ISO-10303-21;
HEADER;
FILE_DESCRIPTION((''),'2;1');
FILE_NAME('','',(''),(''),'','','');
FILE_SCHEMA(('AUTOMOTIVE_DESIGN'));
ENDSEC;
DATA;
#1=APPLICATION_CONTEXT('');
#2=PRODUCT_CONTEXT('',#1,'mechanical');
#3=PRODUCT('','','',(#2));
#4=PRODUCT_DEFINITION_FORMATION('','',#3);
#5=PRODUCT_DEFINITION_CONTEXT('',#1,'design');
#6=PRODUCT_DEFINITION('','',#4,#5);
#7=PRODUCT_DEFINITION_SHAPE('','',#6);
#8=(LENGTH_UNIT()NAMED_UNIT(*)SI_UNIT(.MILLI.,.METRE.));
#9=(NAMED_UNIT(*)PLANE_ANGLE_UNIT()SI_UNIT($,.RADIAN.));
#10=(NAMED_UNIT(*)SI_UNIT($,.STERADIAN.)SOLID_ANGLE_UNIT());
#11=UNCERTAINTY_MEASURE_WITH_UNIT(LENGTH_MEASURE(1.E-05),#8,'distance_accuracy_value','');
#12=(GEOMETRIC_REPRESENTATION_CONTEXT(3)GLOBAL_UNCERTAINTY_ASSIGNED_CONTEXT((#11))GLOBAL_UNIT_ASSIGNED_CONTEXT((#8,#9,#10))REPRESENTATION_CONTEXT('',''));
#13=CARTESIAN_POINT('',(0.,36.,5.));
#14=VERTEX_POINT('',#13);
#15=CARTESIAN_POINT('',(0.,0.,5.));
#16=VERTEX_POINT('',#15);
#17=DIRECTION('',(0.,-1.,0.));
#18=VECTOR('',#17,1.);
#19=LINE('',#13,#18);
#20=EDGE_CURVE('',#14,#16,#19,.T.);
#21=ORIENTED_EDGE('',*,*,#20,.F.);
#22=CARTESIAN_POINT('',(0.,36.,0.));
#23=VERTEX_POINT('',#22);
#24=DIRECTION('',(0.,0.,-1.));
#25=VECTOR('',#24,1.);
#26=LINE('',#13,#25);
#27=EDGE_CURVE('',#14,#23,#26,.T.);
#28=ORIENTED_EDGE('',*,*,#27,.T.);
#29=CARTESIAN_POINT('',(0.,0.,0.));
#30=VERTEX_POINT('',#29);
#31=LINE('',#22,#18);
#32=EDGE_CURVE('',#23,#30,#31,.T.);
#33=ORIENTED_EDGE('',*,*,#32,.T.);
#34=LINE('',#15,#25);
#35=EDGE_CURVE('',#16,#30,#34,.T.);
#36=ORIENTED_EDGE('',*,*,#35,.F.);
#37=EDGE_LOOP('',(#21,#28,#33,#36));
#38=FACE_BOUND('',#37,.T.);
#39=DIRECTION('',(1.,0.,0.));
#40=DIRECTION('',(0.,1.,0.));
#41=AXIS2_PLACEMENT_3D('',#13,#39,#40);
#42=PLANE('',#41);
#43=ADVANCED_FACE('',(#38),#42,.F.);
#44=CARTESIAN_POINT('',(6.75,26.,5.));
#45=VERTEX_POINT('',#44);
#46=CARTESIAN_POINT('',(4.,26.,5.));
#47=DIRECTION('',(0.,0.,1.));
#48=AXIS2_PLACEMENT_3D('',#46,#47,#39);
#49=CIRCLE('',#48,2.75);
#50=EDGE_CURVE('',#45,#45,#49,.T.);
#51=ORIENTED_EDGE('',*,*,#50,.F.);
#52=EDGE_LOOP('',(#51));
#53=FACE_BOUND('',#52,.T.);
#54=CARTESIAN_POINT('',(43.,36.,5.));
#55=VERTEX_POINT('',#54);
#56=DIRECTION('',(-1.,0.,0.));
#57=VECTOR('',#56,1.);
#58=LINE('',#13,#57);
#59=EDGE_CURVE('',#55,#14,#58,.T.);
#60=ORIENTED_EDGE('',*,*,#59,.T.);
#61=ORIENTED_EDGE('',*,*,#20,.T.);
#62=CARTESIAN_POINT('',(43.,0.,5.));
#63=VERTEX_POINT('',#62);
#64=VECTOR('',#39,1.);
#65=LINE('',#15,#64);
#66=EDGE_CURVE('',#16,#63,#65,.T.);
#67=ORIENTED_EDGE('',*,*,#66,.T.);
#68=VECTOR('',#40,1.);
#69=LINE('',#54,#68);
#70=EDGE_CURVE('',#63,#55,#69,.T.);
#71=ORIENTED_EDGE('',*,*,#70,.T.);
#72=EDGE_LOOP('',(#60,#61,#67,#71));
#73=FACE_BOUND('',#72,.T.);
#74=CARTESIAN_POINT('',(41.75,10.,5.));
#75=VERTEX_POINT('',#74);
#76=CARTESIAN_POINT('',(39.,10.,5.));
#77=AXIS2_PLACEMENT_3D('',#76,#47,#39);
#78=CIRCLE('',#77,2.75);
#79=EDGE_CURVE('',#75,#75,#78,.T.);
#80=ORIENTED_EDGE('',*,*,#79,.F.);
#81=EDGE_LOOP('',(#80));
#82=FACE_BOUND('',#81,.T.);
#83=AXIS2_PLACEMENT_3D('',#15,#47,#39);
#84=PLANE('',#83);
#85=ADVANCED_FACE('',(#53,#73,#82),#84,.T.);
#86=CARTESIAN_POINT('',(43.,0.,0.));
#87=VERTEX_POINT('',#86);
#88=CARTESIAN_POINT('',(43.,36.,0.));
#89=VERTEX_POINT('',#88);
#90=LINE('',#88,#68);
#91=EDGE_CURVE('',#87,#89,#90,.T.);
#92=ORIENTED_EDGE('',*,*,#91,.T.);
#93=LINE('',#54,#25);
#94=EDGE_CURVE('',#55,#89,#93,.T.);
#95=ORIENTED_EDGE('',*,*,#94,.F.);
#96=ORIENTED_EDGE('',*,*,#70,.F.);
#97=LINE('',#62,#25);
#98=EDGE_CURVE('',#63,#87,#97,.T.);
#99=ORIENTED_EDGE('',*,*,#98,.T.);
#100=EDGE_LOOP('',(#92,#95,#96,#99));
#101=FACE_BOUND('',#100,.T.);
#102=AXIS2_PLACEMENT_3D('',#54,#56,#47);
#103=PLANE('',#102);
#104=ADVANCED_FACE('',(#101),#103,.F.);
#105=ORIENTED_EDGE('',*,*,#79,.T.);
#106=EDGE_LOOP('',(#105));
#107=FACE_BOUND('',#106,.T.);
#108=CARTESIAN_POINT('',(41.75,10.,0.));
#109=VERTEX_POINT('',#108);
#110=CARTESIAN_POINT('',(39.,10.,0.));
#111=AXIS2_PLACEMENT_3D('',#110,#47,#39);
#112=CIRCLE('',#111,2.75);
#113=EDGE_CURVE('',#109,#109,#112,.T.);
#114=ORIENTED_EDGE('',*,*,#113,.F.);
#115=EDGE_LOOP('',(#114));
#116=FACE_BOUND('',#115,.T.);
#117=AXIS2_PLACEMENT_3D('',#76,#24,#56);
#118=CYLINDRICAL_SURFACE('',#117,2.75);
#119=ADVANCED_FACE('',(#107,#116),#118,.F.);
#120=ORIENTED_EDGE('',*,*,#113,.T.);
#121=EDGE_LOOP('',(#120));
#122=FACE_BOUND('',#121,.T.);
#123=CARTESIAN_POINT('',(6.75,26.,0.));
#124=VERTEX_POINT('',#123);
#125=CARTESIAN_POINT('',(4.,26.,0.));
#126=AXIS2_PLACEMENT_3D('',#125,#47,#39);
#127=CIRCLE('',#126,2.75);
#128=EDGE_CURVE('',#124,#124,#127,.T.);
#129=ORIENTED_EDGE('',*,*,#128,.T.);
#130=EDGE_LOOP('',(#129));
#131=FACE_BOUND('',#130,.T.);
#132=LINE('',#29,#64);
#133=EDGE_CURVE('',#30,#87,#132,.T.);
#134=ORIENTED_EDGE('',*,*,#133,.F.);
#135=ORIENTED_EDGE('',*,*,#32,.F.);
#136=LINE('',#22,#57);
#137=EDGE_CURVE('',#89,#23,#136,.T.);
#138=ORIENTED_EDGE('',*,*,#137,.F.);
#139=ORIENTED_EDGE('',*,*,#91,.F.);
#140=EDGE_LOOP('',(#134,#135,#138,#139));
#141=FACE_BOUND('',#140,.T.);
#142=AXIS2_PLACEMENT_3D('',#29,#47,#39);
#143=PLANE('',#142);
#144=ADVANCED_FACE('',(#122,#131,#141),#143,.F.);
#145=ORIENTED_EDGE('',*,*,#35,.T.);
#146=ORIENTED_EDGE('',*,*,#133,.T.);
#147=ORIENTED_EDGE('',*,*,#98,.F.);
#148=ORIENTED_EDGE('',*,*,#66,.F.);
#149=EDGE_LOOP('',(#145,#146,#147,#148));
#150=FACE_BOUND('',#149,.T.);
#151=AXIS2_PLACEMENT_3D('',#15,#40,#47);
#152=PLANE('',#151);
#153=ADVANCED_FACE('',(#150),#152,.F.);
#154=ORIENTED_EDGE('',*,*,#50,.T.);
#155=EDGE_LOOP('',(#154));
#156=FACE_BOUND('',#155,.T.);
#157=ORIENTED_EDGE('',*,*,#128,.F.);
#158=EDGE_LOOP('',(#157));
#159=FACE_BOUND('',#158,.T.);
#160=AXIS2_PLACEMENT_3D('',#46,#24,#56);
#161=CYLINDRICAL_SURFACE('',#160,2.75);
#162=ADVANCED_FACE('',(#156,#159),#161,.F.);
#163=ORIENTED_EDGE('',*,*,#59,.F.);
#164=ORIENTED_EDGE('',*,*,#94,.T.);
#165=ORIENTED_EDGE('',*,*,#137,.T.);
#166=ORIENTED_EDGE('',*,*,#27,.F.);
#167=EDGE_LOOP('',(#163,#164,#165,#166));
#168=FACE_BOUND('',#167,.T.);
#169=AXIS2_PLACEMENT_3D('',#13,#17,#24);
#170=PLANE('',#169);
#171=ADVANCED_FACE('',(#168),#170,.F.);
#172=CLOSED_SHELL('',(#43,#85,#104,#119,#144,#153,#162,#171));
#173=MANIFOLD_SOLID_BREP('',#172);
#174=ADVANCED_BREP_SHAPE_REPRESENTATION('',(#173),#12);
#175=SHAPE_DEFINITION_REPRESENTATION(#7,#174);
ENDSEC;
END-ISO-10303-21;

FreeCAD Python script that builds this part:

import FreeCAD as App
import Part
import Sketcher
from FreeCAD import Vector


def add_polygon(sketch, points):
    """Adds a closed chain of lines whose ends are joined by coincident constraints."""
    first, n = sketch.GeometryCount, len(points)
    for a, b in zip(points, points[1:] + points[:1]):
        sketch.addGeometry(Part.LineSegment(App.Vector(*a, 0), App.Vector(*b, 0)), False)
    for i in range(n):
        sketch.addConstraint(Sketcher.Constraint("Coincident", first + i, 2, first + (i + 1) % n, 1))

doc = App.newDocument("Part")
body = doc.addObject("PartDesign::Body", "Body")

# Sketch on XY plane
sketch1 = doc.addObject("Sketcher::SketchObject", "Sketch")
body.addObject(sketch1)
sketch1.AttachmentSupport = (doc.XY_Plane, [""])
sketch1.MapMode = "FlatFace"
add_polygon(sketch1, [(0, 36), (0, 0), (43, 0), (43, 36)])  # lines 0-3
sketch1.addGeometry(Part.Circle(Vector(39, 10, 0), Vector(0, 0, 1), 2.75), False)  # 4
sketch1.addGeometry(Part.Circle(Vector(4, 26, 0), Vector(0, 0, 1), 2.75), False)  # 5
sketch1.addConstraint(Sketcher.Constraint("Vertical", 0))
sketch1.addConstraint(Sketcher.Constraint("Horizontal", 1))
sketch1.addConstraint(Sketcher.Constraint("Vertical", 2))
sketch1.addConstraint(Sketcher.Constraint("Horizontal", 3))
sketch1.addConstraint(Sketcher.Constraint("Coincident", 0, 2, -1, 1))
sketch1.addConstraint(Sketcher.Constraint("Equal", 4, 5))
sketch1.addConstraint(Sketcher.Constraint("Diameter", 4, 5.5))
sketch1.addConstraint(Sketcher.Constraint("DistanceX", 1, 1, 1, 2, 43.0))
sketch1.addConstraint(Sketcher.Constraint("DistanceY", 0, 2, 0, 1, 36.0))
sketch1.addConstraint(Sketcher.Constraint("DistanceX", -1, 1, 4, 3, 39.0))
sketch1.addConstraint(Sketcher.Constraint("DistanceY", -1, 1, 4, 3, 10.0))
sketch1.addConstraint(Sketcher.Constraint("DistanceX", -1, 1, 5, 3, 4.0))
sketch1.addConstraint(Sketcher.Constraint("DistanceY", -1, 1, 5, 3, 26.0))
pad1 = doc.addObject("PartDesign::Pad", "Pad")
body.addObject(pad1)
pad1.Profile = sketch1
pad1.Length = 5

doc.recompute()
